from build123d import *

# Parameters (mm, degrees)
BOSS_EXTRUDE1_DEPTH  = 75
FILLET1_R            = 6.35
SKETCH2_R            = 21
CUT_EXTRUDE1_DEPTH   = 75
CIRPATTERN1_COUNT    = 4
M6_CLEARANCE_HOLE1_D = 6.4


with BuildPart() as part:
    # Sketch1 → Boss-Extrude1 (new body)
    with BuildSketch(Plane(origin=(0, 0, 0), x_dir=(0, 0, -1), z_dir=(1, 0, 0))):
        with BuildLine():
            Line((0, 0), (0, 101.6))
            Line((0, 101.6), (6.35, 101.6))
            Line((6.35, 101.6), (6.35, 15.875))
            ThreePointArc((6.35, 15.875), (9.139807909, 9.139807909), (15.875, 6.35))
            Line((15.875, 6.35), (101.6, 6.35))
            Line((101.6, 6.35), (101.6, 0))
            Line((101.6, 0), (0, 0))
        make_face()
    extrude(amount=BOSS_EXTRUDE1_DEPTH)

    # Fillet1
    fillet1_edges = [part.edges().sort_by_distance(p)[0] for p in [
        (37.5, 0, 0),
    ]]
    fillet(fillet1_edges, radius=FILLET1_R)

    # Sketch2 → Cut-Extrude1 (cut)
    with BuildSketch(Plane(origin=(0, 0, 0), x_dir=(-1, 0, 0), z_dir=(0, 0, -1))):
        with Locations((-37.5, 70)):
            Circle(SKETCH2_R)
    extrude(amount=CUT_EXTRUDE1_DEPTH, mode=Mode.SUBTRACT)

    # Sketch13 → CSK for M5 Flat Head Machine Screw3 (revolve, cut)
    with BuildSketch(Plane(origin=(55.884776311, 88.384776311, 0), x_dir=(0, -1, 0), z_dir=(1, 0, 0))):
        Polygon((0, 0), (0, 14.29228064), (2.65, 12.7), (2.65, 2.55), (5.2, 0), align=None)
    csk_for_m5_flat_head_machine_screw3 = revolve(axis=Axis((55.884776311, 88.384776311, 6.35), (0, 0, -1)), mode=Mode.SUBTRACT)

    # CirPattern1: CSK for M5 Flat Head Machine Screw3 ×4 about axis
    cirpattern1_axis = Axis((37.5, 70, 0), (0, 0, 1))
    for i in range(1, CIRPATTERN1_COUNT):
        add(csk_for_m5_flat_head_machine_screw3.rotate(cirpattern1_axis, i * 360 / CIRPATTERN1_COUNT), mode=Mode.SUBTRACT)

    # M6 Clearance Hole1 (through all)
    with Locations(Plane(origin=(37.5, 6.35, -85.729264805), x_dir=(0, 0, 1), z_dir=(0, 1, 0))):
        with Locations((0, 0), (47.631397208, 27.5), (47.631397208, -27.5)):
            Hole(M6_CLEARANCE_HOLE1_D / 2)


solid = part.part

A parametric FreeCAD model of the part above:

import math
import FreeCAD as App
import Part
import Sketcher
from FreeCAD import Vector
Q = App.Units.Quantity


def edges_at(feature, points):
    """Names of the edges that pass closest to the given points."""
    edges = feature.Shape.Edges
    near = lambda p: min(range(len(edges)), key=lambda i: edges[i].distToShape(Part.Vertex(*p))[0])
    return sorted({f"Edge{near(p) + 1}" for p in points})

doc = App.newDocument("Part")
body = doc.addObject("PartDesign::Body", "Body")

# Sketch on YZ plane
sketch1 = doc.addObject("Sketcher::SketchObject", "Sketch")
body.addObject(sketch1)
sketch1.AttachmentSupport = (doc.YZ_Plane, [""])
sketch1.MapMode = "FlatFace"
sketch1.addGeometry(Part.LineSegment(Vector(102, 0, 0), Vector(0, 0, 0)), False)
sketch1.addGeometry(Part.LineSegment(Vector(0, 0, 0), Vector(0, -102, 0)), False)
sketch1.addGeometry(Part.LineSegment(Vector(0, -102, 0), Vector(6, -102, 0)), False)
sketch1.addGeometry(Part.LineSegment(Vector(6, -102, 0), Vector(6, -16, 0)), False)
sketch1.addGeometry(Part.ArcOfCircle(Part.Circle(Vector(16, -16, 0), Vector(0, 0, 1), 10), math.radians(90), math.radians(180)), False)
sketch1.addGeometry(Part.LineSegment(Vector(16, -6, 0), Vector(102, -6, 0)), False)
sketch1.addGeometry(Part.LineSegment(Vector(102, -6, 0), Vector(102, 0, 0)), False)
sketch1.addConstraint(Sketcher.Constraint("Coincident", 0, 2, 1, 1))
sketch1.addConstraint(Sketcher.Constraint("Coincident", 1, 2, 2, 1))
sketch1.addConstraint(Sketcher.Constraint("Coincident", 2, 2, 3, 1))
sketch1.addConstraint(Sketcher.Constraint("Tangent", 3, 2, 4, 2))
sketch1.addConstraint(Sketcher.Constraint("Tangent", 4, 1, 5, 1))
sketch1.addConstraint(Sketcher.Constraint("Coincident", 5, 2, 6, 1))
sketch1.addConstraint(Sketcher.Constraint("Coincident", 6, 2, 0, 1))
sketch1.addConstraint(Sketcher.Constraint("Horizontal", 0))
sketch1.addConstraint(Sketcher.Constraint("Vertical", 1))
sketch1.addConstraint(Sketcher.Constraint("Horizontal", 2))
sketch1.addConstraint(Sketcher.Constraint("Vertical", 3))
sketch1.addConstraint(Sketcher.Constraint("Horizontal", 5))
sketch1.addConstraint(Sketcher.Constraint("Vertical", 6))
sketch1.addConstraint(Sketcher.Constraint("Coincident", 0, 2, -1, 1))
sketch1.addConstraint(Sketcher.Constraint("Equal", 0, 1))
sketch1.addConstraint(Sketcher.Constraint("Equal", 5, 3))
sketch1.addConstraint(Sketcher.Constraint("DistanceX", 0, 2, 0, 1, Q("101.6 mm")))
sketch1.addConstraint(Sketcher.Constraint("Radius", 4, Q("9.525 mm")))
sketch1.addConstraint(Sketcher.Constraint("DistanceX", 2, 1, 2, 2, Q("6.35 mm")))
pad1 = doc.addObject("PartDesign::Pad", "Pad")
body.addObject(pad1)
pad1.Profile = sketch1
pad1.Length = 75
doc.recompute()

fillet = doc.addObject("PartDesign::Fillet", "Fillet")
body.addObject(fillet)
fillet.Base = (pad1, edges_at(pad1, [(37.5, 0, 0)]))
fillet.Radius = 6.35

# Sketch on XY plane
sketch2 = doc.addObject("Sketcher::SketchObject", "Sketch001")
body.addObject(sketch2)
sketch2.AttachmentSupport = (doc.XY_Plane, [""])
sketch2.MapMode = "FlatFace"
sketch2.addGeometry(Part.Circle(Vector(38, 70, 0), Vector(0, 0, 1), 21), False)
sketch2.addConstraint(Sketcher.Constraint("Diameter", 0, Q("42 mm")))
sketch2.addConstraint(Sketcher.Constraint("DistanceY", -1, 1, 0, 3, Q("70 mm")))
sketch2.addConstraint(Sketcher.Constraint("DistanceX", -1, 1, 0, 3, Q("37.5 mm")))
pocket1 = doc.addObject("PartDesign::Pocket", "Pocket")
body.addObject(pocket1)
pocket1.Profile = sketch2
pocket1.Length = 75

# Sketch on YZ plane
sketch3 = doc.addObject("Sketcher::SketchObject", "Sketch002")
body.addObject(sketch3)
sketch3.AttachmentSupport = (doc.YZ_Plane, [""])
sketch3.MapMode = "FlatFace"
sketch3.AttachmentOffset = App.Placement(Vector(0, 0, 55.884776), App.Rotation())
sketch3.addGeometry(Part.LineSegment(Vector(88.4, -14.3, 0), Vector(88.4, 0, 0)), False)
sketch3.addGeometry(Part.LineSegment(Vector(88.4, 0, 0), Vector(83.2, 0, 0)), False)
sketch3.addGeometry(Part.LineSegment(Vector(83.2, 0, 0), Vector(85.7, -2.5, 0)), False)
sketch3.addGeometry(Part.LineSegment(Vector(85.7, -2.5, 0), Vector(85.7, -12.7, 0)), False)
sketch3.addGeometry(Part.LineSegment(Vector(85.7, -12.7, 0), Vector(88.4, -14.3, 0)), False)
sketch3.addGeometry(Part.LineSegment(Vector(88.4, 0, 0), Vector(88.4, -14.3, 0)), True)  # axis
sketch3.addConstraint(Sketcher.Constraint("Coincident", 0, 2, 1, 1))
sketch3.addConstraint(Sketcher.Constraint("Coincident", 1, 2, 2, 1))
sketch3.addConstraint(Sketcher.Constraint("Coincident", 2, 2, 3, 1))
sketch3.addConstraint(Sketcher.Constraint("Coincident", 3, 2, 4, 1))
sketch3.addConstraint(Sketcher.Constraint("Coincident", 4, 2, 0, 1))
sketch3.addConstraint(Sketcher.Constraint("Vertical", 0))
sketch3.addConstraint(Sketcher.Constraint("Horizontal", 1))
sketch3.addConstraint(Sketcher.Constraint("Vertical", 3))
sketch3.addConstraint(Sketcher.Constraint("Vertical", 5))
sketch3.addConstraint(Sketcher.Constraint("Coincident", 5, 1, 0, 2))
sketch3.addConstraint(Sketcher.Constraint("PointOnObject", 0, 2, -1))
sketch3.addConstraint(Sketcher.Constraint("Equal", 0, 5))
sketch3.addConstraint(Sketcher.Constraint("Angle", 2, Q("-45 deg")))
sketch3.addConstraint(Sketcher.Constraint("Angle", 4, Q("-31 deg")))
sketch3.addConstraint(Sketcher.Constraint("DistanceX", 1, 2, 1, 1, Q("5.2 mm")))
sketch3.addConstraint(Sketcher.Constraint("DistanceY", 3, 2, 3, 1, Q("10.15 mm")))
sketch3.addConstraint(Sketcher.Constraint("DistanceY", 3, 2, -1, 1, Q("12.7 mm")))
sketch3.addConstraint(Sketcher.Constraint("DistanceX", -1, 1, 0, 2, Q("88.384776 mm")))
groove = doc.addObject("PartDesign::Groove", "Groove")
body.addObject(groove)
groove.Profile = sketch3
groove.ReferenceAxis = (sketch3, ["Axis0"])
groove.Angle = 360
doc.recompute()

datumline = doc.addObject("PartDesign::Line", "DatumLine")
body.addObject(datumline)
datumline.Placement = App.Placement(Vector(37.5, 70, 0), App.Rotation(Vector(0, 0, 1), Vector(0, 0, 1)))
polarpattern = doc.addObject("PartDesign::PolarPattern", "PolarPattern")
body.addObject(polarpattern)
polarpattern.Originals = [groove]
polarpattern.Axis = (datumline, [""])
polarpattern.Angle = 360
polarpattern.Occurrences = 4
body.Tip = polarpattern

# Sketch on XZ plane
sketch4 = doc.addObject("Sketcher::SketchObject", "Sketch003")
body.addObject(sketch4)
sketch4.AttachmentSupport = (doc.XZ_Plane, [""])
sketch4.MapMode = "FlatFace"
sketch4.AttachmentOffset = App.Placement(Vector(0, 0, -6.35), App.Rotation())
sketch4.addGeometry(Part.Circle(Vector(37.5, -85.7, 0), Vector(0, 0, 1), 3.2), False)
sketch4.addGeometry(Part.Circle(Vector(65, -38.1, 0), Vector(0, 0, 1), 3.2), False)
sketch4.addGeometry(Part.Circle(Vector(10, -38.1, 0), Vector(0, 0, 1), 3.2), False)
sketch4.addConstraint(Sketcher.Constraint("Equal", 0, 1))
sketch4.addConstraint(Sketcher.Constraint("Equal", 1, 2))
sketch4.addConstraint(Sketcher.Constraint("Horizontal", 1, 3, 2, 3))
sketch4.addConstraint(Sketcher.Constraint("Diameter", 0, Q("6.4 mm")))
sketch4.addConstraint(Sketcher.Constraint("DistanceX", -1, 1, 1, 3, Q("65 mm")))
sketch4.addConstraint(Sketcher.Constraint("DistanceX", -1, 1, 2, 3, Q("10 mm")))
sketch4.addConstraint(Sketcher.Constraint("DistanceX", -1, 1, 0, 3, Q("37.5 mm")))
sketch4.addConstraint(Sketcher.Constraint("DistanceY", 0, 3, -1, 1, Q("85.729265 mm")))
sketch4.addConstraint(Sketcher.Constraint("DistanceY", 1, 3, -1, 1, Q("38.097868 mm")))
doc.recompute()
hole = doc.addObject("PartDesign::Hole", "Hole")
body.addObject(hole)
hole.Profile = sketch4
hole.ThreadType = "None"
hole.Diameter = 6.4
hole.DepthType = "ThroughAll"
hole.Reversed = True

doc.recompute()
